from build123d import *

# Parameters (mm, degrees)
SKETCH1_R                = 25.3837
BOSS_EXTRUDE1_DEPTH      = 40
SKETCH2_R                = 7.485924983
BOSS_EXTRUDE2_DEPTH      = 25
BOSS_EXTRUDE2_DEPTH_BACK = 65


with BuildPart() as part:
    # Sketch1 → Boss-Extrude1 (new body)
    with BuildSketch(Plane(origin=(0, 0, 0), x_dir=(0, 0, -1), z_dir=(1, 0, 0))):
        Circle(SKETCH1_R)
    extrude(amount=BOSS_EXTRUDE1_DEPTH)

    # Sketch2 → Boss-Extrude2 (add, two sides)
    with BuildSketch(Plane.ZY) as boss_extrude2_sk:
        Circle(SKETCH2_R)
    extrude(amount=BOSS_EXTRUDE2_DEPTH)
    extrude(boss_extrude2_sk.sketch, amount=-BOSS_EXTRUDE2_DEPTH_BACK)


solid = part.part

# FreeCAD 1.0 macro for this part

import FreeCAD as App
import Part
import Sketcher

doc = App.newDocument("Part")
body = doc.addObject("PartDesign::Body", "Body")

# Sketch on YZ plane
sketch1 = doc.addObject("Sketcher::SketchObject", "Sketch")
body.addObject(sketch1)
sketch1.AttachmentSupport = (doc.YZ_Plane, [""])
sketch1.MapMode = "FlatFace"
sketch1.addGeometry(Part.Circle(App.Vector(0, 0, 0), App.Vector(0, 0, 1), 25), False)
sketch1.addConstraint([
    Sketcher.Constraint("Coincident", 0, 3, -1, 1),
    Sketcher.Constraint("Diameter", 0, 50.7674),
])
pad1 = doc.addObject("PartDesign::Pad", "Pad")
body.addObject(pad1)
pad1.Profile = sketch1
pad1.Length = 40

# Sketch on YZ plane
sketch2 = doc.addObject("Sketcher::SketchObject", "Sketch001")
body.addObject(sketch2)
sketch2.AttachmentSupport = (doc.YZ_Plane, [""])
sketch2.MapMode = "FlatFace"
sketch2.addGeometry(Part.Circle(App.Vector(0, 0, 0), App.Vector(0, 0, 1), 7), False)
sketch2.addConstraint([
    Sketcher.Constraint("Coincident", 0, 3, -1, 1),
    Sketcher.Constraint("Diameter", 0, 14.97185),
])
pad2 = doc.addObject("PartDesign::Pad", "Pad001")
body.addObject(pad2)
pad2.Profile = sketch2
pad2.Type = "TwoLengths"
pad2.Length = 25
pad2.Length2 = 65
pad2.Reversed = True

doc.recompute()
